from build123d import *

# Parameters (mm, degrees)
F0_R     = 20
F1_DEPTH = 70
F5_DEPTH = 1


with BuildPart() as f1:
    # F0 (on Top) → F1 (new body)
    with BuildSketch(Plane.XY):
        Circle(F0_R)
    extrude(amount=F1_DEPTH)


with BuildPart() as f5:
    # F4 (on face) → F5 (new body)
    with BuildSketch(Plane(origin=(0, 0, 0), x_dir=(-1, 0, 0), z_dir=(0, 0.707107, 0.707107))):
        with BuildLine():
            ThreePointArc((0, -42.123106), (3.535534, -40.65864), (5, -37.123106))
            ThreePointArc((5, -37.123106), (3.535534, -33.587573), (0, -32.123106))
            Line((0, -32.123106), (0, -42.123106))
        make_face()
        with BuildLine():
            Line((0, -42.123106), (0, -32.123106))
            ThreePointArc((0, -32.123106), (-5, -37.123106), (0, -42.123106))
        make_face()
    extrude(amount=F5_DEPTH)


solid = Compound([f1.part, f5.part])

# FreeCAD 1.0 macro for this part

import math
import FreeCAD as App
import Part
import Sketcher
from FreeCAD import Vector

doc = App.newDocument("Part")
body = doc.addObject("PartDesign::Body", "Body")

sketch1 = body.newObject("Sketcher::SketchObject", "Sketch")
sketch1.AttachmentSupport = (doc.getObject("XY_Plane"), [""])
sketch1.MapMode = "FlatFace"
sketch1.addGeometry(Part.Circle(Vector(0, 0, 0), Vector(0, 0, 1), 20), False)
sketch1.addConstraint(Sketcher.Constraint("Coincident", 0, 3, -1, 1))
sketch1.addConstraint(Sketcher.Constraint("Diameter", 0, 40.0))
pad1 = body.newObject("PartDesign::Pad", "Pad")
pad1.Profile = sketch1
pad1.Length = 70
body2 = doc.addObject("PartDesign::Body", "Body001")

sketch2 = body2.newObject("Sketcher::SketchObject", "Sketch001")
sketch2.Placement = App.Placement(Vector(0, 0, 0), App.Rotation(Vector(-1, 0, 0), Vector(0, -0.707106781, 0.707106781), Vector(0, 0.707106781, 0.707106781), "ZXY"))
sketch2.addGeometry(Part.ArcOfCircle(Part.Circle(Vector(0, -37.123106, 0), Vector(0, 0, 1), 5), math.radians(-90.000004), math.radians(0.000004)), False)
sketch2.addGeometry(Part.ArcOfCircle(Part.Circle(Vector(-0.000001, -37.123107, 0), Vector(0, 0, 1), 5.000001), math.radians(0.000016), math.radians(89.999984)), False)
sketch2.addGeometry(Part.ArcOfCircle(Part.Circle(Vector(0, -37.123106, 0), Vector(0, 0, 1), 5), math.radians(90), math.radians(270)), False)
sketch2.addConstraint(Sketcher.Constraint("Tangent", 0, 2, 1, 1))
sketch2.addConstraint(Sketcher.Constraint("Tangent", 1, 2, 2, 1))
sketch2.addConstraint(Sketcher.Constraint("Tangent", 2, 2, 0, 1))
sketch2.addConstraint(Sketcher.Constraint("PointOnObject", 0, 3, -2))
sketch2.addConstraint(Sketcher.Constraint("PointOnObject", 1, 2, -2))
sketch2.addConstraint(Sketcher.Constraint("PointOnObject", 2, 2, -2))
sketch2.addConstraint(Sketcher.Constraint("Horizontal", 2, 3, 0, 2))
sketch2.addConstraint(Sketcher.Constraint("Radius", 0, 5.0))
sketch2.addConstraint(Sketcher.Constraint("DistanceY", 0, 3, -1, 1, 37.123106))
pad2 = body2.newObject("PartDesign::Pad", "Pad001")
pad2.Profile = sketch2
pad2.Length = 1

doc.recompute()
